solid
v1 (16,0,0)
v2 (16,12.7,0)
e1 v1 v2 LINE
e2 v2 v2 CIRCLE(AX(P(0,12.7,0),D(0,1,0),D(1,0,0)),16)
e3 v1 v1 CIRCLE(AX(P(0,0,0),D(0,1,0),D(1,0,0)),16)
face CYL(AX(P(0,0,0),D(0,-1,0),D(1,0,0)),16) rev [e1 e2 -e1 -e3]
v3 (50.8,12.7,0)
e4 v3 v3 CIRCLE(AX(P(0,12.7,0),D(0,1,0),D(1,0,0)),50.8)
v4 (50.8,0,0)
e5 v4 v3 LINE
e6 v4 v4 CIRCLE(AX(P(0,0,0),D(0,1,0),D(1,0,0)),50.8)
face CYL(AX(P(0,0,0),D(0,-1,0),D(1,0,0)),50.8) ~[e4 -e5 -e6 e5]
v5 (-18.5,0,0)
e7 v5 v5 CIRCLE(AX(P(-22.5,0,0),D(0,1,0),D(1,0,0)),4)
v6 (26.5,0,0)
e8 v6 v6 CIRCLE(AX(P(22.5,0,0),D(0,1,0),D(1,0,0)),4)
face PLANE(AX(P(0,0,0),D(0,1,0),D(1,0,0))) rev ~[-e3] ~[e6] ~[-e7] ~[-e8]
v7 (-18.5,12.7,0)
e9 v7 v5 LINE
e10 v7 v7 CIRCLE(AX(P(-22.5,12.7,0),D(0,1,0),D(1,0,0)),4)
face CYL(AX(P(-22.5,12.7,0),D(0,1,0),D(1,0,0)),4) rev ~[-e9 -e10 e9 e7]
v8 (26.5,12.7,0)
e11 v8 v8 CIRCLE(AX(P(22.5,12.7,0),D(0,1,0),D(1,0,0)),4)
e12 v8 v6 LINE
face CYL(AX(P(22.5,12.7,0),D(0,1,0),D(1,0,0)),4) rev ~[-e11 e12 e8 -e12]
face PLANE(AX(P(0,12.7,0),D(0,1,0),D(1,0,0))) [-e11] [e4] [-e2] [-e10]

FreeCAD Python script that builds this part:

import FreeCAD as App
import Part
import Sketcher

V = App.Vector
Q = App.Units.Quantity

doc = App.newDocument("Part")
body = doc.addObject("PartDesign::Body", "Body")

sketch1 = body.newObject("Sketcher::SketchObject", "Sketch")
sketch1.AttachmentSupport = (doc.getObject("XZ_Plane"), [""])
sketch1.MapMode = "FlatFace"
sketch1.addGeometry(Part.Circle(V(0, 0, 0), V(0, 0, 1), 50.8), False)
sketch1.addGeometry(Part.Circle(V(0, 0, 0), V(0, 0, 1), 16), False)
sketch1.addConstraint(Sketcher.Constraint("Coincident", 0, 3, -1, 1))
sketch1.addConstraint(Sketcher.Constraint("Coincident", 1, 3, -1, 1))
sketch1.addConstraint(Sketcher.Constraint("Diameter", 1, Q("32 mm")))
sketch1.addConstraint(Sketcher.Constraint("Diameter", 0, Q("101.6 mm")))
pad1 = body.newObject("PartDesign::Pad", "Pad")
pad1.Profile = sketch1
pad1.Length = 12.7
pad1.Reversed = True

sketch2 = body.newObject("Sketcher::SketchObject", "Sketch001")
sketch2.AttachmentSupport = (doc.getObject("XZ_Plane"), [""])
sketch2.MapMode = "FlatFace"
sketch2.AttachmentOffset = App.Placement(V(0, 0, -12.7), App.Rotation())
sketch2.addGeometry(Part.Circle(V(-22.5, 0, 0), V(0, 0, 1), 4), False)
sketch2.addGeometry(Part.Circle(V(22.5, 0, 0), V(0, 0, 1), 4), False)
sketch2.addConstraint(Sketcher.Constraint("Equal", 0, 1))
sketch2.addConstraint(Sketcher.Constraint("Symmetric", 0, 3, 1, 3, -1, 1))
sketch2.addConstraint(Sketcher.Constraint("PointOnObject", 0, 3, -1))
sketch2.addConstraint(Sketcher.Constraint("Diameter", 0, Q("8 mm")))
sketch2.addConstraint(Sketcher.Constraint("DistanceX", 0, 3, 1, 3, Q("45 mm")))
pocket1 = body.newObject("PartDesign::Pocket", "Pocket")
pocket1.Profile = sketch2
pocket1.Length = 12.7
pocket1.Reversed = True

doc.recompute()
